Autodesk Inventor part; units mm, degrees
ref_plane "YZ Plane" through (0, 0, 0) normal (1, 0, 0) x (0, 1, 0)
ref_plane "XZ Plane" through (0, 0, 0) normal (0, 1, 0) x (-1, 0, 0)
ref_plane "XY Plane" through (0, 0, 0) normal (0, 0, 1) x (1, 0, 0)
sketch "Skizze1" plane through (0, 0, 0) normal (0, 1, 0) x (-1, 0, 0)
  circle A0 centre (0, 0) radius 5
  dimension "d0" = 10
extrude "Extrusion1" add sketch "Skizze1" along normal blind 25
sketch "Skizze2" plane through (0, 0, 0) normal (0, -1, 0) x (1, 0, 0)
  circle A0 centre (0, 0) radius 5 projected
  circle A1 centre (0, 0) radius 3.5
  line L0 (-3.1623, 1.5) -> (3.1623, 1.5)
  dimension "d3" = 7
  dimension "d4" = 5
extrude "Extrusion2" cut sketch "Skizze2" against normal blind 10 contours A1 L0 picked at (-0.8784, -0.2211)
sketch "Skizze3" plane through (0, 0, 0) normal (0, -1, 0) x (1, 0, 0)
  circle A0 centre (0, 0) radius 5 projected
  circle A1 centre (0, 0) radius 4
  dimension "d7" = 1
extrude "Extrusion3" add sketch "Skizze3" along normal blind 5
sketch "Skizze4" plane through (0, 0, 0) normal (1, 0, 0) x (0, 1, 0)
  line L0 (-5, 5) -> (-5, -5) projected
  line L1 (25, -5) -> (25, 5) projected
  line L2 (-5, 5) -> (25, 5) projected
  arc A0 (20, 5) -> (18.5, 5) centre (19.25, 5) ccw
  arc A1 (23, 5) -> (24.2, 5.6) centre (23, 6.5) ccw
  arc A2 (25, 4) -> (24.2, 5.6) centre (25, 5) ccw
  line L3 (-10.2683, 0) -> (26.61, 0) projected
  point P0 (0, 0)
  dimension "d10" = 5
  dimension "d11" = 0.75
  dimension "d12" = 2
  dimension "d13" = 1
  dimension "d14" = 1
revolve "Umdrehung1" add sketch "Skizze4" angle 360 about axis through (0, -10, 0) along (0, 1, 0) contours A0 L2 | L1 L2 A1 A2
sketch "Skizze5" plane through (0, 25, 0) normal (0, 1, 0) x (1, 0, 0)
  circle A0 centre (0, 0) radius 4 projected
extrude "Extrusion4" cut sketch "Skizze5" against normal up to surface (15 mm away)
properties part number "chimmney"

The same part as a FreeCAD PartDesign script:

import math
import FreeCAD as App
import Part
import Sketcher
Q = App.Units.Quantity

doc = App.newDocument("Part")
body = doc.addObject("PartDesign::Body", "Body")

# Sketch on XZ plane
sketch1 = body.newObject("Sketcher::SketchObject", "Sketch")
sketch1.AttachmentSupport = (doc.getObject("XZ_Plane"), [""])
sketch1.MapMode = "FlatFace"
sketch1.addGeometry(Part.Circle(App.Vector(0, 0, 0), App.Vector(0, 0, 1), 5), False)
sketch1.addConstraint([
    Sketcher.Constraint("Coincident", 0, 3, -1, 1),
    Sketcher.Constraint("Diameter", 0, Q("10 mm")),
])
pad1 = body.newObject("PartDesign::Pad", "Pad")
pad1.Profile = sketch1
pad1.Length = 25
pad1.Reversed = True

# Sketch on XZ plane
sketch2 = body.newObject("Sketcher::SketchObject", "Sketch001")
sketch2.AttachmentSupport = (doc.getObject("XZ_Plane"), [""])
sketch2.MapMode = "FlatFace"
sketch2.addGeometry([
    Part.ArcOfCircle(Part.Circle(App.Vector(0, 0, 0), App.Vector(0, 0, 1), 3.5), math.radians(155), math.radians(385)),
    Part.LineSegment(App.Vector(-3.2, 1.5, 0), App.Vector(3.2, 1.5, 0)),
], False)
sketch2.addConstraint([
    Sketcher.Constraint("Coincident", 0, 1, 1, 1),
    Sketcher.Constraint("Coincident", 1, 2, 0, 2),
    Sketcher.Constraint("Horizontal", 1),
    Sketcher.Constraint("Coincident", 0, 3, -1, 1),
    Sketcher.Constraint("Radius", 0, Q("3.5 mm")),
    Sketcher.Constraint("DistanceY", -1, 1, 0, 1, Q("1.5 mm")),
])
pocket1 = body.newObject("PartDesign::Pocket", "Pocket")
pocket1.Profile = sketch2
pocket1.Length = 10

# Sketch on XZ plane
sketch3 = body.newObject("Sketcher::SketchObject", "Sketch002")
sketch3.AttachmentSupport = (doc.getObject("XZ_Plane"), [""])
sketch3.MapMode = "FlatFace"
sketch3.addGeometry([
    Part.Circle(App.Vector(0, 0, 0), App.Vector(0, 0, 1), 5),
    Part.Circle(App.Vector(0, 0, 0), App.Vector(0, 0, 1), 4),
], False)
sketch3.addConstraint([
    Sketcher.Constraint("Coincident", 0, 3, -1, 1),
    Sketcher.Constraint("Coincident", 1, 3, -1, 1),
    Sketcher.Constraint("Diameter", 0, Q("10 mm")),
    Sketcher.Constraint("Diameter", 1, Q("8 mm")),
])
pad2 = body.newObject("PartDesign::Pad", "Pad001")
pad2.Profile = sketch3
pad2.Length = 5

# Sketch on YZ plane
sketch4 = body.newObject("Sketcher::SketchObject", "Sketch003")
sketch4.AttachmentSupport = (doc.getObject("YZ_Plane"), [""])
sketch4.MapMode = "FlatFace"
sketch4.addGeometry([
    Part.ArcOfCircle(Part.Circle(App.Vector(19.2, 5, 0), App.Vector(0, 0, 1), 0.8), math.radians(0), math.radians(180)),  # 0
    Part.LineSegment(App.Vector(18.5, 5, 0), App.Vector(20, 5, 0)),  # 1
    Part.LineSegment(App.Vector(25, 5, 0), App.Vector(25, 4, 0)),  # 2
    Part.ArcOfCircle(Part.Circle(App.Vector(25, 5, 0), App.Vector(0, 0, 1), 1), math.radians(-90), math.radians(143)),  # 3
    Part.ArcOfCircle(Part.Circle(App.Vector(23, 6.5, 0), App.Vector(0, 0, 1), 1.5), math.radians(-90), math.radians(-37)),  # 4
    Part.LineSegment(App.Vector(23, 5, 0), App.Vector(25, 5, 0)),  # 5
], False)
sketch4.addConstraint([
    Sketcher.Constraint("Coincident", 0, 1, 1, 2),
    Sketcher.Constraint("Coincident", 1, 1, 0, 2),
    Sketcher.Constraint("Coincident", 2, 2, 3, 1),
    Sketcher.Constraint("Tangent", 3, 2, 4, 2),
    Sketcher.Constraint("Tangent", 4, 1, 5, 1),
    Sketcher.Constraint("Coincident", 5, 2, 2, 1),
    Sketcher.Constraint("Horizontal", 1),
    Sketcher.Constraint("Vertical", 2),
    Sketcher.Constraint("Horizontal", 5),
    Sketcher.Constraint("Coincident", 5, 2, 3, 3),
    Sketcher.Constraint("Horizontal", 0, 3, 3, 3),
    Sketcher.Constraint("Horizontal", 3, 3, 0, 1),
    Sketcher.Constraint("Radius", 3, Q("1 mm")),
    Sketcher.Constraint("DistanceX", 5, 1, 5, 2, Q("2 mm")),
    Sketcher.Constraint("Radius", 0, Q("0.75 mm")),
    Sketcher.Constraint("DistanceY", -1, 1, 0, 3, Q("5 mm")),
    Sketcher.Constraint("DistanceX", 0, 1, 3, 3, Q("5 mm")),
    Sketcher.Constraint("DistanceX", -1, 1, 3, 3, Q("25 mm")),
])
revolution = body.newObject("PartDesign::Revolution", "Revolution")
revolution.Profile = sketch4
revolution.ReferenceAxis = (sketch4, ["H_Axis"])
revolution.Angle = 360

# Sketch on XZ plane
sketch5 = body.newObject("Sketcher::SketchObject", "Sketch004")
sketch5.AttachmentSupport = (doc.getObject("XZ_Plane"), [""])
sketch5.MapMode = "FlatFace"
sketch5.AttachmentOffset = App.Placement(App.Vector(0, 0, -25), App.Rotation())
sketch5.addGeometry(Part.Circle(App.Vector(0, 0, 0), App.Vector(0, 0, 1), 4), False)
sketch5.addConstraint([
    Sketcher.Constraint("Coincident", 0, 3, -1, 1),
    Sketcher.Constraint("Diameter", 0, Q("8 mm")),
])
pocket2 = body.newObject("PartDesign::Pocket", "Pocket001")
pocket2.Profile = sketch5
pocket2.Length = 15
pocket2.Reversed = True

doc.recompute()
